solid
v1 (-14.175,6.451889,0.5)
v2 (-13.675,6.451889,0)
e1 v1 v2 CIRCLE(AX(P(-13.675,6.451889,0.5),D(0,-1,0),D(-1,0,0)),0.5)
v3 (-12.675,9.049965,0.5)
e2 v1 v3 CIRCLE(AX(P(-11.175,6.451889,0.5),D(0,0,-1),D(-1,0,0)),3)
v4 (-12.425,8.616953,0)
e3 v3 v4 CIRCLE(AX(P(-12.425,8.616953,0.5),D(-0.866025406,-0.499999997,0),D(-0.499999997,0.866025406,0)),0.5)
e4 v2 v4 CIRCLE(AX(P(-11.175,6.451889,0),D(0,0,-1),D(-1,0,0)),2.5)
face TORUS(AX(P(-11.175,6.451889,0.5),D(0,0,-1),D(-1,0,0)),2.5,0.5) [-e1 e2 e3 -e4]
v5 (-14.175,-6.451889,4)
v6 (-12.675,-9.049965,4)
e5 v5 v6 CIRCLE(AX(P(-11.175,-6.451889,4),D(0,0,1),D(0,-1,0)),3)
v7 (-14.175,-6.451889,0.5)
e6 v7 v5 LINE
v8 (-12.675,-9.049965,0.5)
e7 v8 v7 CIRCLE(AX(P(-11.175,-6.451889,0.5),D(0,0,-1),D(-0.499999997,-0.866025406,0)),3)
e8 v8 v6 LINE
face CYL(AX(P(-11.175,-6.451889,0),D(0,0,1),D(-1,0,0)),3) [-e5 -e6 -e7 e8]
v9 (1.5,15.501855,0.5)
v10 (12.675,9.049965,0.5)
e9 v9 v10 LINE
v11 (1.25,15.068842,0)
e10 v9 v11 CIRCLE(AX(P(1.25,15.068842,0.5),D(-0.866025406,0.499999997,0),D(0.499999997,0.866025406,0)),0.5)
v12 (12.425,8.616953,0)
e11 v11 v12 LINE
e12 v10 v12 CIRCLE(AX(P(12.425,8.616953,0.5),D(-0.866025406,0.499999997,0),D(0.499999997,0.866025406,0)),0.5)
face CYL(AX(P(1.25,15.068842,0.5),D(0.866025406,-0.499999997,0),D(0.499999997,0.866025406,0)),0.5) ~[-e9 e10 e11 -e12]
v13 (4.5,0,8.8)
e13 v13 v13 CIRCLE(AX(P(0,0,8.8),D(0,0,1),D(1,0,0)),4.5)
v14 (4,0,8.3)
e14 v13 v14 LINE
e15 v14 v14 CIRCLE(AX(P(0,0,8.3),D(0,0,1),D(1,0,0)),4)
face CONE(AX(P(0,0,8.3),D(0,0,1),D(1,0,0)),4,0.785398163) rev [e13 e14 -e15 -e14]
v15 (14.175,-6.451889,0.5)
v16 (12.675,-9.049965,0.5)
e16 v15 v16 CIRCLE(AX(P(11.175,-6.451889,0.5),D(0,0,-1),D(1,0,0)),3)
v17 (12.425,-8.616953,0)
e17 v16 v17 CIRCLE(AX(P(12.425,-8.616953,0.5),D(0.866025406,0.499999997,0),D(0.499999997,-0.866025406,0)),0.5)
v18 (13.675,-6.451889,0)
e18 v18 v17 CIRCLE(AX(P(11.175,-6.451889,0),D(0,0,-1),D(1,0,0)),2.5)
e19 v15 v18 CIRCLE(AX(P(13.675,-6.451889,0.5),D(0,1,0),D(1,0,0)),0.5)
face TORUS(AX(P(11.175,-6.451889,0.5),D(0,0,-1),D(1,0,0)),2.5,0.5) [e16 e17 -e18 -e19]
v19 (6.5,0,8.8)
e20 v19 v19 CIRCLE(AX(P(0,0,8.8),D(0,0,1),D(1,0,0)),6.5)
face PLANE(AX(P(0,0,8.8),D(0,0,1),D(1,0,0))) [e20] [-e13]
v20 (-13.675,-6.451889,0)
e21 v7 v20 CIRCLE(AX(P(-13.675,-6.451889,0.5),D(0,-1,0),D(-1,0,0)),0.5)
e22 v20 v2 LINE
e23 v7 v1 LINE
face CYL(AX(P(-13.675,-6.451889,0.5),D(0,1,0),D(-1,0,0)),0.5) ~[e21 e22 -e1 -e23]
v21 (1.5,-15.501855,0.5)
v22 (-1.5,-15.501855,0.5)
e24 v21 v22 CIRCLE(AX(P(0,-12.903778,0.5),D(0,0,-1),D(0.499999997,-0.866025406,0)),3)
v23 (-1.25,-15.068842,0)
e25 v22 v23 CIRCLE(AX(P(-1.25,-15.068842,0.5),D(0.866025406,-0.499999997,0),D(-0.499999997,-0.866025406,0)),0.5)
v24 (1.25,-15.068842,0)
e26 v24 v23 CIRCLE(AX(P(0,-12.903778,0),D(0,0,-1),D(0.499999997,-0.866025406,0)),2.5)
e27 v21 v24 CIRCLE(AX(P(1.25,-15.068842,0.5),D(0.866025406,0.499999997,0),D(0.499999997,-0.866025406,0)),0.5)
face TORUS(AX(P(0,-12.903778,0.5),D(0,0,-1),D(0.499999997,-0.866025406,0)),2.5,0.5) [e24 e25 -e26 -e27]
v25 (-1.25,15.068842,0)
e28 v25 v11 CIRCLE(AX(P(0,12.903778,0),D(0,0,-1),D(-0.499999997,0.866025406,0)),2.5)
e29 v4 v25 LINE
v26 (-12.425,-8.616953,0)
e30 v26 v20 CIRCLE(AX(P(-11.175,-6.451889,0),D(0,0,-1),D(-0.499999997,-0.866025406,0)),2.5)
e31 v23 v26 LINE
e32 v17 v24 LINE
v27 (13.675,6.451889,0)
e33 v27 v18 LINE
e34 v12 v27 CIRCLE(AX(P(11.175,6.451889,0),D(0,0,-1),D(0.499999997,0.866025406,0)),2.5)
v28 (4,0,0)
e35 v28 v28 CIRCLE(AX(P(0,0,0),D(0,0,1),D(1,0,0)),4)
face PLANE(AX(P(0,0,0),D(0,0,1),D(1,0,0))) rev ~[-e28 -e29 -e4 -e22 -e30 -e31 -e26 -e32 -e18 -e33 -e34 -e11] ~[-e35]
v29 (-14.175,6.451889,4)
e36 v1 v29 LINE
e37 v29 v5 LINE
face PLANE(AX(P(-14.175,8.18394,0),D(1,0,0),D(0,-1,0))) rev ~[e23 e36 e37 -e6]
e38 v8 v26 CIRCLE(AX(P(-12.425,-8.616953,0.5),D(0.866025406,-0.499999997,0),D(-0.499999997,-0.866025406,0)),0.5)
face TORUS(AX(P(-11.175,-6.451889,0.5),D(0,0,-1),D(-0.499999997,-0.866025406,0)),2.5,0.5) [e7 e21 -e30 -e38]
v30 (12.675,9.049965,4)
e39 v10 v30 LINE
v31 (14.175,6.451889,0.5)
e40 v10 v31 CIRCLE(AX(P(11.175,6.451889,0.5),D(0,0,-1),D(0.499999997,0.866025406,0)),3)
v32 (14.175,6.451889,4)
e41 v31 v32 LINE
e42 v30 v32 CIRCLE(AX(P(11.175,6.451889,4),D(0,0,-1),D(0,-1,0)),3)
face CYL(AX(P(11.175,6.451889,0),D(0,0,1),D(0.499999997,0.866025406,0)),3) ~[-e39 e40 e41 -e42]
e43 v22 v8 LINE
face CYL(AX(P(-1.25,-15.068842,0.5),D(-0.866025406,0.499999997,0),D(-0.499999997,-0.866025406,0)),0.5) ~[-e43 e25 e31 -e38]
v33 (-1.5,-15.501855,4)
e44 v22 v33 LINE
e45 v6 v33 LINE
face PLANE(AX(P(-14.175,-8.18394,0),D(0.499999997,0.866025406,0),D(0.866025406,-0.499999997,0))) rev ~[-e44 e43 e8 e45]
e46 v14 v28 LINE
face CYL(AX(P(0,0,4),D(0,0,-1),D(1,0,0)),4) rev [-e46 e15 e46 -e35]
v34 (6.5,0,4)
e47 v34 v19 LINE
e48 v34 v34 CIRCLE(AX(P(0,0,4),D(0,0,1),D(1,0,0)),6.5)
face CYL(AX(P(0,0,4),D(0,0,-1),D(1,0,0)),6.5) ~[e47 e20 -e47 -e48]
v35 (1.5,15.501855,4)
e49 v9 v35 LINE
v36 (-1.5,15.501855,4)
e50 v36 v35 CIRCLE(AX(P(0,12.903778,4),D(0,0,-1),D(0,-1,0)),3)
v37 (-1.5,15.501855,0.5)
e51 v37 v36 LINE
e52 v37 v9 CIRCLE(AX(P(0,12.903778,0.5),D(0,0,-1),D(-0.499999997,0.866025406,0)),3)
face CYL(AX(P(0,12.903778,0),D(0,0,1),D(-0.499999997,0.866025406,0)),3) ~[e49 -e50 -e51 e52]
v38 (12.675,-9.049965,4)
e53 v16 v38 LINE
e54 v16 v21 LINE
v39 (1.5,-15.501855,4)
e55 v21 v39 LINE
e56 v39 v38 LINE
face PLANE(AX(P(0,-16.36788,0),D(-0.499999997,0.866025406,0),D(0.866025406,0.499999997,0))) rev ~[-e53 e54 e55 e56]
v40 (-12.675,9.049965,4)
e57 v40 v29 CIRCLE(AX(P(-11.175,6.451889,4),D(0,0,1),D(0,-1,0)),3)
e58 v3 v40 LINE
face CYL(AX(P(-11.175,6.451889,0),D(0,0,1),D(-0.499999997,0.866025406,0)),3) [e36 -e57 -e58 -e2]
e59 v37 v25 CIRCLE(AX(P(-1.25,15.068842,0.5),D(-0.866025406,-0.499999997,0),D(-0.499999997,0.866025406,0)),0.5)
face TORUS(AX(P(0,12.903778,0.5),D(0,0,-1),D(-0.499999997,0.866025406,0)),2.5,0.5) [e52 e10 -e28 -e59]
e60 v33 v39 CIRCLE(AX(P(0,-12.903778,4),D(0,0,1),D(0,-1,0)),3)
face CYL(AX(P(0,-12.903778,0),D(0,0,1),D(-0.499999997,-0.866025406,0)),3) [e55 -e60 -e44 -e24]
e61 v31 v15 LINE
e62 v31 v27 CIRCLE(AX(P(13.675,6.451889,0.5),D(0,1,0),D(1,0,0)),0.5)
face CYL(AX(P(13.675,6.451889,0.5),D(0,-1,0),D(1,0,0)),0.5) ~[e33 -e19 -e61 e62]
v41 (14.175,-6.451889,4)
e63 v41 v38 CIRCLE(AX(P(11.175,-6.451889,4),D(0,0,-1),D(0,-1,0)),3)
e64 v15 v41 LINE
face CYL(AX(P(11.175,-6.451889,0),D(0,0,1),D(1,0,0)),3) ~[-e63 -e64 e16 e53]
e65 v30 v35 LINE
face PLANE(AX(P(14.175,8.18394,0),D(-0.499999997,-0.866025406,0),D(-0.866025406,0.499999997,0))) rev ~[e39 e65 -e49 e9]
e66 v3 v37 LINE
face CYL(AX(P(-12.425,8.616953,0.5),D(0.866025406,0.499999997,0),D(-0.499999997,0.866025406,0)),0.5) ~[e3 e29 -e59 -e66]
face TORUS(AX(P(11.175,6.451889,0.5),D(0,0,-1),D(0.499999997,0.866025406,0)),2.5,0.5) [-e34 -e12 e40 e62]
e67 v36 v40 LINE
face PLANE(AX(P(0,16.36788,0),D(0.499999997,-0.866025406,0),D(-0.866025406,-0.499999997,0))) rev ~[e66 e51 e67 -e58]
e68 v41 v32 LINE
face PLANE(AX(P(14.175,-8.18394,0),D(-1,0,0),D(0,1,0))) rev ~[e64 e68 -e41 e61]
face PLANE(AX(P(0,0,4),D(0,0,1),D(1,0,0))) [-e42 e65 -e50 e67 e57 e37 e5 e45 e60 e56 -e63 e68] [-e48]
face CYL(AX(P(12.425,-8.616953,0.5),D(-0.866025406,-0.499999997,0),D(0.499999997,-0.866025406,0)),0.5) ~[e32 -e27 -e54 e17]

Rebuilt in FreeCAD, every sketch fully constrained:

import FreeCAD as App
import Part
import Sketcher
from FreeCAD import Vector
Q = App.Units.Quantity


def edges_at(feature, points):
    """Names of the edges that pass closest to the given points."""
    edges = feature.Shape.Edges
    near = lambda p: min(range(len(edges)), key=lambda i: edges[i].distToShape(Part.Vertex(*p))[0])
    return sorted({f"Edge{near(p) + 1}" for p in points})

doc = App.newDocument("Part")
body = doc.addObject("PartDesign::Body", "Body")

# Sketch on XY plane
sketch1 = body.newObject("Sketcher::SketchObject", "Sketch")
sketch1.AttachmentSupport = (doc.getObject("XY_Plane"), [""])
sketch1.MapMode = "FlatFace"
sketch1.addGeometry([
    Part.LineSegment(Vector(0, 16.36788, 0), Vector(-14.175, 8.18394, 0)),  # 0
    Part.LineSegment(Vector(-14.175, 8.18394, 0), Vector(-14.175, -8.18394, 0)),  # 1
    Part.LineSegment(Vector(-14.175, -8.18394, 0), Vector(0, -16.36788, 0)),  # 2
    Part.LineSegment(Vector(0, -16.36788, 0), Vector(14.175, -8.18394, 0)),  # 3
    Part.LineSegment(Vector(14.175, -8.18394, 0), Vector(14.175, 8.18394, 0)),  # 4
    Part.LineSegment(Vector(14.175, 8.18394, 0), Vector(0, 16.36788, 0)),  # 5
    Part.Circle(Vector(0, 0, 0), Vector(0, 0, 1), 4),  # 6
], False)
sketch1.addConstraint([
    Sketcher.Constraint("Coincident", 0, 2, 1, 1),
    Sketcher.Constraint("Coincident", 1, 2, 2, 1),
    Sketcher.Constraint("Coincident", 2, 2, 3, 1),
    Sketcher.Constraint("Coincident", 3, 2, 4, 1),
    Sketcher.Constraint("Coincident", 4, 2, 5, 1),
    Sketcher.Constraint("Coincident", 5, 2, 0, 1),
    Sketcher.Constraint("Vertical", 1),
    Sketcher.Constraint("Vertical", 4),
    Sketcher.Constraint("Coincident", 6, 3, -1, 1),
    Sketcher.Constraint("Symmetric", 0, 2, 3, 2, -1, 1),
    Sketcher.Constraint("Symmetric", 2, 2, 5, 2, -1, 1),
    Sketcher.Constraint("PointOnObject", 2, 2, -2),
    Sketcher.Constraint("Parallel", 2, 5),
    Sketcher.Constraint("Horizontal", 1, 2, 3, 2),
    Sketcher.Constraint("Diameter", 6, 8.0),
    Sketcher.Constraint("Angle", 0, Q("-150 deg")),
    Sketcher.Constraint("DistanceX", 1, 2, 3, 2, 28.35),
    Sketcher.Constraint("DistanceY", 1, 2, 1, 1, 16.36788),
])
pad1 = body.newObject("PartDesign::Pad", "Pad")
pad1.Profile = sketch1
pad1.Length = 4

# Sketch on XY plane
sketch2 = body.newObject("Sketcher::SketchObject", "Sketch001")
sketch2.AttachmentSupport = (doc.getObject("XY_Plane"), [""])
sketch2.MapMode = "FlatFace"
sketch2.AttachmentOffset = App.Placement(Vector(0, 0, 4), App.Rotation())
sketch2.addGeometry([
    Part.Circle(Vector(0, 0, 0), Vector(0, 0, 1), 6.5),
    Part.Circle(Vector(0, 0, 0), Vector(0, 0, 1), 4),
], False)
sketch2.addConstraint([
    Sketcher.Constraint("Coincident", 0, 3, -1, 1),
    Sketcher.Constraint("Coincident", 1, 3, -1, 1),
    Sketcher.Constraint("Diameter", 0, 13.0),
    Sketcher.Constraint("Diameter", 1, 8.0),
])
pad2 = body.newObject("PartDesign::Pad", "Pad001")
pad2.Profile = sketch2
pad2.Length = 4.8
doc.recompute()

chamfer = body.newObject("PartDesign::Chamfer", "Chamfer")
chamfer.Base = (pad2, edges_at(pad2, [(-4, 0, 8.8)]))
chamfer.Size = 0.5
doc.recompute()

fillet = body.newObject("PartDesign::Fillet", "Fillet")
fillet.Base = (chamfer, edges_at(chamfer, [
    (0, -16.368, 2),
    (14.175, -8.184, 2),
    (14.175, 8.184, 2),
    (-14.175, -8.184, 2),
    (-14.175, 8.184, 2),
    (0, 16.368, 2),
]))
fillet.Radius = 3
doc.recompute()

fillet2 = body.newObject("PartDesign::Fillet", "Fillet001")
fillet2.Base = (fillet, edges_at(fillet, [
    (13.773, -7.952, 0),
    (7.087, -12.276, 0),
    (-7.087, -12.276, 0),
    (-13.773, -7.952, 0),
    (-14.175, 0, 0),
    (-13.773, 7.952, 0),
    (-7.087, 12.276, 0),
    (0, 15.904, 0),
    (7.087, 12.276, 0),
    (13.773, 7.952, 0),
    (14.175, 0, 0),
    (0, -15.904, 0),
]))
fillet2.Radius = 0.5

doc.recompute()
